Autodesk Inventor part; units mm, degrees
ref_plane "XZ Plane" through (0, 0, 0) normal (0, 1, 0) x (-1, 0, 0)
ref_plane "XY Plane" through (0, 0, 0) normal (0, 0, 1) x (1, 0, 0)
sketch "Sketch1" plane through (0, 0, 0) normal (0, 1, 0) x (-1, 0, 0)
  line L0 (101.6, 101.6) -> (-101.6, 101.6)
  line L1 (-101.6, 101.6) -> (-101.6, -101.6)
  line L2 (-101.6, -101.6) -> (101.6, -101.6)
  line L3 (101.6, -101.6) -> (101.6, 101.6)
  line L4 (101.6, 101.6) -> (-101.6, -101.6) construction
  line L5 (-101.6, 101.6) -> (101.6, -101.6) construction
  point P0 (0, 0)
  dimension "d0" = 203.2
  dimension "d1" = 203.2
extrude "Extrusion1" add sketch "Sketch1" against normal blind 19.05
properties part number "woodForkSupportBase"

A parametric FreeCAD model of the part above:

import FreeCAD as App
import Part
import Sketcher
Q = App.Units.Quantity

doc = App.newDocument("Part")
params = doc.addObject("Spreadsheet::Sheet", "Params")
for row, (alias, value) in enumerate([
    ("sketch1_width", "8 in"),
    ("pad1_length", "0.75 in"),
], start=1):
    params.set(f"A{row}", alias)
    params.set(f"B{row}", "=" + value)
    params.setAlias(f"B{row}", alias)

body = doc.addObject("PartDesign::Body", "Body")

# Sketch on XZ plane
sketch1 = doc.addObject("Sketcher::SketchObject", "Sketch")
body.addObject(sketch1)
sketch1.AttachmentSupport = (doc.XZ_Plane, [""])
sketch1.MapMode = "FlatFace"
sketch1.addGeometry(Part.LineSegment(App.Vector(-102, -102, 0), App.Vector(-102, 102, 0)), False)
sketch1.addGeometry(Part.LineSegment(App.Vector(-102, 102, 0), App.Vector(102, 102, 0)), False)
sketch1.addGeometry(Part.LineSegment(App.Vector(102, 102, 0), App.Vector(102, -102, 0)), False)
sketch1.addGeometry(Part.LineSegment(App.Vector(102, -102, 0), App.Vector(-102, -102, 0)), False)
sketch1.addConstraint(Sketcher.Constraint("Coincident", 0, 2, 1, 1))
sketch1.addConstraint(Sketcher.Constraint("Coincident", 1, 2, 2, 1))
sketch1.addConstraint(Sketcher.Constraint("Coincident", 2, 2, 3, 1))
sketch1.addConstraint(Sketcher.Constraint("Coincident", 3, 2, 0, 1))
sketch1.addConstraint(Sketcher.Constraint("Vertical", 0))
sketch1.addConstraint(Sketcher.Constraint("Horizontal", 1))
sketch1.addConstraint(Sketcher.Constraint("Vertical", 2))
sketch1.addConstraint(Sketcher.Constraint("Horizontal", 3))
sketch1.addConstraint(Sketcher.Constraint("Symmetric", 0, 2, 2, 2, -1, 1))
sketch1.addConstraint(Sketcher.Constraint("Equal", 3, 0))
sketch1.addConstraint(Sketcher.Constraint("DistanceX", 1, 1, 1, 2, Q("8 in")))
sketch1.setExpression("Constraints[10]", "Params.sketch1_width")
pad1 = doc.addObject("PartDesign::Pad", "Pad")
body.addObject(pad1)
pad1.Profile = sketch1
pad1.setExpression("Length", "Params.pad1_length")

doc.recompute()
